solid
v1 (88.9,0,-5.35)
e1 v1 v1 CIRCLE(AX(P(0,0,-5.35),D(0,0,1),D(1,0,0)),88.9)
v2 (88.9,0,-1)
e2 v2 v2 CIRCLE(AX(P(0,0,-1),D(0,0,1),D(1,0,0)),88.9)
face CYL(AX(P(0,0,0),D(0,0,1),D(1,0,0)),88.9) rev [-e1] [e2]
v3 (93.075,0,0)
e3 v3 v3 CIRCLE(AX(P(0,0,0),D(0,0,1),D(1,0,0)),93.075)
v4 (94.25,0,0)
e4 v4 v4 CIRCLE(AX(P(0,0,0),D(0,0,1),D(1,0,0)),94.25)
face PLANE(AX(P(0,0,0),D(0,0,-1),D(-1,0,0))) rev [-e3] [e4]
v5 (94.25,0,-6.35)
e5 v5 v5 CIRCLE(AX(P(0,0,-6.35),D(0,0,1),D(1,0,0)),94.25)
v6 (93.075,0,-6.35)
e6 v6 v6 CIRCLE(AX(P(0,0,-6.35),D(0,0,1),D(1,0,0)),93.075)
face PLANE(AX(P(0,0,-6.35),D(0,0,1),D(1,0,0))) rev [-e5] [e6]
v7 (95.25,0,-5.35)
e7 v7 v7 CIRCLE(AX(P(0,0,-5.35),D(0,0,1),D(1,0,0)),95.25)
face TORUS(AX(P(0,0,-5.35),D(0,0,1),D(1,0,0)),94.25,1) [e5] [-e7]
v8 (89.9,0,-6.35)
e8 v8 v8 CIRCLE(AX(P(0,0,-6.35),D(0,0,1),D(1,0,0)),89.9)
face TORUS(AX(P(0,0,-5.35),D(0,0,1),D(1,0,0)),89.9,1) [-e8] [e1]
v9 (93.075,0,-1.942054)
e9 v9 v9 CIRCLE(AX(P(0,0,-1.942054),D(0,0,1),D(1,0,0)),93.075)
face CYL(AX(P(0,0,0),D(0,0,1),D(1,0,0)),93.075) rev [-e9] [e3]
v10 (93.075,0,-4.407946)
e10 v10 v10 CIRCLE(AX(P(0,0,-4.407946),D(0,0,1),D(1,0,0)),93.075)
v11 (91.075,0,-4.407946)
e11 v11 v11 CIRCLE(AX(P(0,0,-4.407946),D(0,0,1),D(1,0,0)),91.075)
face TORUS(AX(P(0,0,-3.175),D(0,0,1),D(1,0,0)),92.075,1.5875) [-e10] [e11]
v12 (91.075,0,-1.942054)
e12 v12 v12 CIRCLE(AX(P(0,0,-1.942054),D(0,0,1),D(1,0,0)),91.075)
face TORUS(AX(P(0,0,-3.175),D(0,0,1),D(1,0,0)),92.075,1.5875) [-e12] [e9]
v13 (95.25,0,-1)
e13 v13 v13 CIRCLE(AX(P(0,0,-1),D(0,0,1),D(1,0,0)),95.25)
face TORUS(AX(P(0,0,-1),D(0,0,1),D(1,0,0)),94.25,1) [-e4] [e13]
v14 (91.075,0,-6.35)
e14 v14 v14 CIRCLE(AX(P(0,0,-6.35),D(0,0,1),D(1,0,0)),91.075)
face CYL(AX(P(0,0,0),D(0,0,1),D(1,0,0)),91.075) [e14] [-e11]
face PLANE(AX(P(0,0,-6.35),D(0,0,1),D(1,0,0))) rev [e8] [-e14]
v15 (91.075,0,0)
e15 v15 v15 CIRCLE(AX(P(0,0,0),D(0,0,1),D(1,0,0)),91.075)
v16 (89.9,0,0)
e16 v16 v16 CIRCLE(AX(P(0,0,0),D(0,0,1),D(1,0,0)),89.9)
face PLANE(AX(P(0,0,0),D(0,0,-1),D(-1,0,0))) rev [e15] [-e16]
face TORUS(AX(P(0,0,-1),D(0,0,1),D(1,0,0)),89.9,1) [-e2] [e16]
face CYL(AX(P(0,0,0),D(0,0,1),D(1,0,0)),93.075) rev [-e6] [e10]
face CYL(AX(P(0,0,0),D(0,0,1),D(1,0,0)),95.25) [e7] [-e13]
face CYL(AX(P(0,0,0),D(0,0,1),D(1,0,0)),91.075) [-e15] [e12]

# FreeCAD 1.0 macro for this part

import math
import FreeCAD as App
import Part
import Sketcher
from FreeCAD import Vector

doc = App.newDocument("Part")
body = doc.addObject("PartDesign::Body", "Body")

# Sketch on XZ plane
sketch1 = body.newObject("Sketcher::SketchObject", "Sketch")
sketch1.AttachmentSupport = (doc.getObject("XZ_Plane"), [""])
sketch1.MapMode = "FlatFace"
sketch1.addGeometry([
    Part.LineSegment(Vector(88.9, -5.35, 0), Vector(88.9, -1, 0)),  # 0
    Part.ArcOfCircle(Part.Circle(Vector(89.9, -1, 0), Vector(0, 0, 1), 1), math.radians(90), math.radians(180)),  # 1
    Part.LineSegment(Vector(89.9, 0, 0), Vector(91.075, 0, 0)),  # 2
    Part.LineSegment(Vector(91.075, 0, 0), Vector(91.075, -1.942054, 0)),  # 3
    Part.ArcOfCircle(Part.Circle(Vector(92.075, -3.175, 0), Vector(0, 0, 1), 1.5875), math.radians(50.955687), math.radians(129.044313)),  # 4
    Part.LineSegment(Vector(93.075, -1.942054, 0), Vector(93.075, 0, 0)),  # 5
    Part.LineSegment(Vector(93.075, 0, 0), Vector(94.25, 0, 0)),  # 6
    Part.ArcOfCircle(Part.Circle(Vector(94.25, -1, 0), Vector(0, 0, 1), 1), math.radians(0), math.radians(90)),  # 7
    Part.LineSegment(Vector(95.25, -1, 0), Vector(95.25, -5.35, 0)),  # 8
    Part.ArcOfCircle(Part.Circle(Vector(94.25, -5.35, 0), Vector(0, 0, 1), 1), math.radians(-90), math.radians(0)),  # 9
    Part.LineSegment(Vector(94.25, -6.35, 0), Vector(93.075, -6.35, 0)),  # 10
    Part.LineSegment(Vector(93.075, -6.35, 0), Vector(93.075, -4.407946, 0)),  # 11
    Part.ArcOfCircle(Part.Circle(Vector(92.075, -3.175, 0), Vector(0, 0, 1), 1.5875), math.radians(-129.044313), math.radians(-50.955687)),  # 12
    Part.LineSegment(Vector(91.075, -4.407946, 0), Vector(91.075, -6.35, 0)),  # 13
    Part.LineSegment(Vector(91.075, -6.35, 0), Vector(89.9, -6.35, 0)),  # 14
    Part.ArcOfCircle(Part.Circle(Vector(89.9, -5.35, 0), Vector(0, 0, 1), 1), math.radians(-180), math.radians(-90)),  # 15
], False)
sketch1.addConstraint([
    Sketcher.Constraint("Tangent", 0, 2, 1, 2),
    Sketcher.Constraint("Tangent", 1, 1, 2, 1),
    Sketcher.Constraint("Coincident", 2, 2, 3, 1),
    Sketcher.Constraint("Coincident", 3, 2, 4, 2),
    Sketcher.Constraint("Coincident", 4, 1, 5, 1),
    Sketcher.Constraint("Coincident", 5, 2, 6, 1),
    Sketcher.Constraint("Tangent", 6, 2, 7, 2),
    Sketcher.Constraint("Tangent", 7, 1, 8, 1),
    Sketcher.Constraint("Tangent", 8, 2, 9, 2),
    Sketcher.Constraint("Tangent", 9, 1, 10, 1),
    Sketcher.Constraint("Coincident", 10, 2, 11, 1),
    Sketcher.Constraint("Coincident", 11, 2, 12, 2),
    Sketcher.Constraint("Coincident", 12, 1, 13, 1),
    Sketcher.Constraint("Coincident", 13, 2, 14, 1),
    Sketcher.Constraint("Tangent", 14, 2, 15, 2),
    Sketcher.Constraint("Tangent", 15, 1, 0, 1),
    Sketcher.Constraint("Vertical", 0),
    Sketcher.Constraint("Horizontal", 2),
    Sketcher.Constraint("Vertical", 3),
    Sketcher.Constraint("Vertical", 5),
    Sketcher.Constraint("Horizontal", 6),
    Sketcher.Constraint("Vertical", 8),
    Sketcher.Constraint("Horizontal", 10),
    Sketcher.Constraint("Vertical", 11),
    Sketcher.Constraint("Vertical", 13),
    Sketcher.Constraint("Horizontal", 14),
    Sketcher.Constraint("Coincident", 12, 3, 4, 3),
    Sketcher.Constraint("Equal", 1, 7),
    Sketcher.Constraint("Equal", 7, 9),
    Sketcher.Constraint("Equal", 4, 12),
    Sketcher.Constraint("Equal", 9, 15),
    Sketcher.Constraint("PointOnObject", 1, 1, -1),
    Sketcher.Constraint("PointOnObject", 5, 2, -1),
    Sketcher.Constraint("Horizontal", 9, 3, 15, 3),
    Sketcher.Constraint("Horizontal", 3, 2, 4, 1),
    Sketcher.Constraint("Horizontal", 11, 2, 12, 1),
    Sketcher.Constraint("Vertical", 5, 2, 10, 2),
    Sketcher.Constraint("Equal", 2, 6),
    Sketcher.Constraint("Equal", 5, 11),
    Sketcher.Constraint("Radius", 1, 1.0),
    Sketcher.Constraint("DistanceX", 2, 2, 4, 3, 1.0),
    Sketcher.Constraint("DistanceY", 0, 1, 0, 2, 4.35),
    Sketcher.Constraint("DistanceX", -1, 1, 1, 3, 89.9),
    Sketcher.Constraint("Radius", 4, 1.5875),
    Sketcher.Constraint("DistanceX", 2, 1, 2, 2, 1.175),
])
revolution = body.newObject("PartDesign::Revolution", "Revolution")
revolution.Profile = sketch1
revolution.ReferenceAxis = (sketch1, ["V_Axis"])
revolution.Angle = 360

doc.recompute()
